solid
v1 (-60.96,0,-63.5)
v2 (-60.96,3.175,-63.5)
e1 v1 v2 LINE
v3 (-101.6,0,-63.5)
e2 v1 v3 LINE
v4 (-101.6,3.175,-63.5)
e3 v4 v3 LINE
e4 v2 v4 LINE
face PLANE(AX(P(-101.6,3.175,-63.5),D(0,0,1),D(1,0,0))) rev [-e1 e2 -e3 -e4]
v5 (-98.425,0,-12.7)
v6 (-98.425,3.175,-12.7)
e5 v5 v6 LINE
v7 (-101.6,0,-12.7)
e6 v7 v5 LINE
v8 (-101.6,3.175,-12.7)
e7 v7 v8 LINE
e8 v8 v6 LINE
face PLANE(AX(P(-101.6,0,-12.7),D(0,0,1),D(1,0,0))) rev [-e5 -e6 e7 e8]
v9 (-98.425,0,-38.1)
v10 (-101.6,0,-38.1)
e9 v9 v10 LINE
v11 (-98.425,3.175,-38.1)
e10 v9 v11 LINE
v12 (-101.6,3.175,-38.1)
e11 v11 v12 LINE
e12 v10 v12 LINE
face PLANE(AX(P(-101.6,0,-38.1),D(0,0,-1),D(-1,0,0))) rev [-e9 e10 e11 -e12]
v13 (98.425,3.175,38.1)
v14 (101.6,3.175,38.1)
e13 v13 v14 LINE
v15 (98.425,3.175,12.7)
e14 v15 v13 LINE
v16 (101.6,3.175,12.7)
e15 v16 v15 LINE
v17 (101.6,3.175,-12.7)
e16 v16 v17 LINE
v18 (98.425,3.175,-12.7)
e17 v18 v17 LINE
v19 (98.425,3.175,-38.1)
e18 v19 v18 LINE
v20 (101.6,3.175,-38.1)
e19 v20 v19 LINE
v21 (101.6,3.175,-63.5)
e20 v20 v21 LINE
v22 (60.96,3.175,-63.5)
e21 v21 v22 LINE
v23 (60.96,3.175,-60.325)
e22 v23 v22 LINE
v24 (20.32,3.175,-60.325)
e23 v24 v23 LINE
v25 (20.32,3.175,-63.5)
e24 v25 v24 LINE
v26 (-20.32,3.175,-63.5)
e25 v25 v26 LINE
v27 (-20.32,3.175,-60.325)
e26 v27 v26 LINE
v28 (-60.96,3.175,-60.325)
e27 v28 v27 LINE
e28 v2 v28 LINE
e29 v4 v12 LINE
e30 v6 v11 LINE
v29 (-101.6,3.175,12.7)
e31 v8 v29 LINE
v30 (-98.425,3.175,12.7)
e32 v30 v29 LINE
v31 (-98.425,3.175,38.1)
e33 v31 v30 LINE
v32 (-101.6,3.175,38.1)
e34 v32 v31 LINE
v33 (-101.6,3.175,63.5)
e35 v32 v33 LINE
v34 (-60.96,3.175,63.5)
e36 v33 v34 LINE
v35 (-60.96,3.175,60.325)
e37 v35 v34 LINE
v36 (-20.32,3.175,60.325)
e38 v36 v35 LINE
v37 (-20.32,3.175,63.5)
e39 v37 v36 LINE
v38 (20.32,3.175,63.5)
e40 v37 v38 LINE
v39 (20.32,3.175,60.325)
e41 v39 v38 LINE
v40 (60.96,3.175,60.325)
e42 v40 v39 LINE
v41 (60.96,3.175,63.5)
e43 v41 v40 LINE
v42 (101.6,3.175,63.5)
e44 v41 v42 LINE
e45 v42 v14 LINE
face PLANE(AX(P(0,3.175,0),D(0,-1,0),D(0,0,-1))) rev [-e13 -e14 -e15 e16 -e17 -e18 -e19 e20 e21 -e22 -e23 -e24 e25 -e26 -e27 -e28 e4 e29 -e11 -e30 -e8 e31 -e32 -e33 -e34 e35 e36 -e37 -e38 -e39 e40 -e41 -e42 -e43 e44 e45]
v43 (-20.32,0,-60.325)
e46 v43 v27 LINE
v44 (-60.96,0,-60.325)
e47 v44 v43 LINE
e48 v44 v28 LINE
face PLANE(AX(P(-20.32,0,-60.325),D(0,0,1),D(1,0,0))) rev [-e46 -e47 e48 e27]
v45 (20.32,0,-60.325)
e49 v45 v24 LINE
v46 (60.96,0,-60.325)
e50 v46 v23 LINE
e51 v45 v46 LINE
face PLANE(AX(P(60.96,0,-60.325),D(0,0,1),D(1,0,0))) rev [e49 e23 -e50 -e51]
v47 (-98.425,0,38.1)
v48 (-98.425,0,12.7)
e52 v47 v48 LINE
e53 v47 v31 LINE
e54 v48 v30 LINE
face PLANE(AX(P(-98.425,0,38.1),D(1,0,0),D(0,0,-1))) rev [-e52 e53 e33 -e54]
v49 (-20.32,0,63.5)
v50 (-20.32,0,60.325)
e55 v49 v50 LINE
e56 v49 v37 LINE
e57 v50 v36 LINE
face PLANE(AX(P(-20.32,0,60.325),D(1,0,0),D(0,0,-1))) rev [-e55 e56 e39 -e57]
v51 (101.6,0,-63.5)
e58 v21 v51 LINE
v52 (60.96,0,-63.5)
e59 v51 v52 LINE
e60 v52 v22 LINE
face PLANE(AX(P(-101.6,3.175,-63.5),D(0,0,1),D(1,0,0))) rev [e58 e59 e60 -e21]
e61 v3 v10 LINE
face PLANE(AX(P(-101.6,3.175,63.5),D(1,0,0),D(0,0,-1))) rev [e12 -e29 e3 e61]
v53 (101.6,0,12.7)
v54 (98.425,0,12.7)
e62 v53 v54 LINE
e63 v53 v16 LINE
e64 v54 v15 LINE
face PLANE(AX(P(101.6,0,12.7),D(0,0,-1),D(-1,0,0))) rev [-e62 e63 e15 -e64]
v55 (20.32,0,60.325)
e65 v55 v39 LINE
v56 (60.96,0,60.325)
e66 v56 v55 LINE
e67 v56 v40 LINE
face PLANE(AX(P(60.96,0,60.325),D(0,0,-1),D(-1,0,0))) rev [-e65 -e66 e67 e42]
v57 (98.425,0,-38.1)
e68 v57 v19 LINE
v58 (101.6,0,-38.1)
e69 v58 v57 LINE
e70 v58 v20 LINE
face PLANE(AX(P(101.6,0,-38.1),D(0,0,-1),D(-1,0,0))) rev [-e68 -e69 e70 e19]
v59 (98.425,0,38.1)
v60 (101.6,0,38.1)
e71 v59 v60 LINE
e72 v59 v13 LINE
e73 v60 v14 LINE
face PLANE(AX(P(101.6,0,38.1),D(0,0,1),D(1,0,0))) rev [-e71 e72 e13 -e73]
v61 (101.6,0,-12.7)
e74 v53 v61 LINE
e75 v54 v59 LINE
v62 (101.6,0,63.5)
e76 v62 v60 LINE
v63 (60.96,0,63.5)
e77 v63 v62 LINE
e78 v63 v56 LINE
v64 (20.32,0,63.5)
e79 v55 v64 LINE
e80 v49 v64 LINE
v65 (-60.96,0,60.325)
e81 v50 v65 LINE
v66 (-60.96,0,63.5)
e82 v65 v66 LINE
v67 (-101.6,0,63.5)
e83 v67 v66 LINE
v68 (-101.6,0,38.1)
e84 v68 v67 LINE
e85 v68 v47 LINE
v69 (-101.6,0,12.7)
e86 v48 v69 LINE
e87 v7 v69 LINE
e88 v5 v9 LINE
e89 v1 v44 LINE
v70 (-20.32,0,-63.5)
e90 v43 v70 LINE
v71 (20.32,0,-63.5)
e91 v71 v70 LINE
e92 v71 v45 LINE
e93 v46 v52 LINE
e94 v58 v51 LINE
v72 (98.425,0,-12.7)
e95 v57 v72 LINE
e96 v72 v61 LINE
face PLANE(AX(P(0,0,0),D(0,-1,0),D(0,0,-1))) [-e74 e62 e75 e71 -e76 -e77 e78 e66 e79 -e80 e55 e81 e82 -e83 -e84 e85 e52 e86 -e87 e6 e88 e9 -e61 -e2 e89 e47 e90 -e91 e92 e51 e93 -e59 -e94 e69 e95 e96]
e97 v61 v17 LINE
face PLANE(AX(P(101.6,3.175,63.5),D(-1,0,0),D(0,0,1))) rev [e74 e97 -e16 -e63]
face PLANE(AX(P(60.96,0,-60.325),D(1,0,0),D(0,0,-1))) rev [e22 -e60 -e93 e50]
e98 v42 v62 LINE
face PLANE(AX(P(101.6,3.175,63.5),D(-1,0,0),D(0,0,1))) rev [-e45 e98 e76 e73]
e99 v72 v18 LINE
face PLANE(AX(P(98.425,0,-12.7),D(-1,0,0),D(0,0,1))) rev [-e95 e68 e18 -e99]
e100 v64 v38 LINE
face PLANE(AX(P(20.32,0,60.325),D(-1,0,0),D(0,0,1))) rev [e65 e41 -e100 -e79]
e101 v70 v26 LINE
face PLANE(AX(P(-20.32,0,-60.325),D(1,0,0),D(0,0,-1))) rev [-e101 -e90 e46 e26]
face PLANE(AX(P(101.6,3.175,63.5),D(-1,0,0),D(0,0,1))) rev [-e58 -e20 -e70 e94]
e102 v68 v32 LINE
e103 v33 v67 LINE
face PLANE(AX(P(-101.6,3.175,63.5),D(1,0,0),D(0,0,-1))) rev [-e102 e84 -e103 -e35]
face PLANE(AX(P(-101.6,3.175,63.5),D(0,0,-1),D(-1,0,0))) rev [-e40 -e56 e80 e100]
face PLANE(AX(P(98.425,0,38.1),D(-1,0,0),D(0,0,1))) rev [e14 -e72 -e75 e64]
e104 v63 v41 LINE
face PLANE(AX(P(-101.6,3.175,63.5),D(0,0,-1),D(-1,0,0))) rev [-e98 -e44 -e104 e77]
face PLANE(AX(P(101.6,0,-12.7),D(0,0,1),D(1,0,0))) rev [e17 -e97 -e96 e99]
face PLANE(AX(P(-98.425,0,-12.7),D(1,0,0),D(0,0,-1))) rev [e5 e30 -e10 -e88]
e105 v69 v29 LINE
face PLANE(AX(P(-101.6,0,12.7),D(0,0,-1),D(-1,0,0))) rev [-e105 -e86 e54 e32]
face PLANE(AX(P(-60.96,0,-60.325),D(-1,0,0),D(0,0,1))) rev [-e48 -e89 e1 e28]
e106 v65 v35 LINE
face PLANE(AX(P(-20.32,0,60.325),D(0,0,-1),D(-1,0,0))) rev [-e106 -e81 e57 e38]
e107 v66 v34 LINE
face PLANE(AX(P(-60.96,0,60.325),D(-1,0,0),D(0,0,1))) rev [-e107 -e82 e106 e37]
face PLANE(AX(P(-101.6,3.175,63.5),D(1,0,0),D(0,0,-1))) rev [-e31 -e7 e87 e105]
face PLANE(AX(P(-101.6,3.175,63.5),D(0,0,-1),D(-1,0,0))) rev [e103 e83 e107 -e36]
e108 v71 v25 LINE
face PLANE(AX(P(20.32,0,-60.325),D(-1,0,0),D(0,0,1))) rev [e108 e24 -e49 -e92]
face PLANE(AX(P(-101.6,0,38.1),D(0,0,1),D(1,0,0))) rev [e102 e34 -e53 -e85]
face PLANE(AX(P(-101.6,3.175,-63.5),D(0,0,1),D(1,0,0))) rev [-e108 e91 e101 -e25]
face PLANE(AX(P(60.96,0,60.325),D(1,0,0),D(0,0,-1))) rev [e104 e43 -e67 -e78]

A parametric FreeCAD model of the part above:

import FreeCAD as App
import Part
import Sketcher

V = App.Vector
Q = App.Units.Quantity

doc = App.newDocument("Part")
params = doc.addObject("Spreadsheet::Sheet", "Params")
for row, (alias, value) in enumerate([
    ("sketch1_width", "8 in"),
    ("sketch1_height", "5 in"),
    ("pad1_length", "0.125 in"),
    ("sketch2_width", "1.6 in"),
    ("sketch2_height", "0.125 in"),
    ("pocket1_length", "0.125 in"),
    ("linearpattern_pitch", "3.2 in"),
    ("sketch3_width", "1.6 in"),
    ("sketch3_height", "0.125 in"),
    ("pocket2_length", "0.125 in"),
    ("linearpattern2_pitch", "3.2 in"),
    ("sketch4_height", "1 in"),
    ("sketch4_width", "0.125 in"),
    ("pocket3_length", "0.125 in"),
    ("linearpattern3_pitch", "2 in"),
    ("sketch5_height", "1 in"),
    ("sketch5_width", "0.125 in"),
    ("pocket4_length", "0.125 in"),
    ("linearpattern4_pitch", "2 in"),
], start=1):
    params.set(f"A{row}", alias)
    params.set(f"B{row}", "=" + value)
    params.setAlias(f"B{row}", alias)

body = doc.addObject("PartDesign::Body", "Body")

# Sketch on XZ plane
sketch1 = doc.addObject("Sketcher::SketchObject", "Sketch")
body.addObject(sketch1)
sketch1.AttachmentSupport = (doc.XZ_Plane, [""])
sketch1.MapMode = "FlatFace"
sketch1.addGeometry(Part.LineSegment(V(-102, -64, 0), V(-102, 64, 0)), False)
sketch1.addGeometry(Part.LineSegment(V(-102, 64, 0), V(102, 64, 0)), False)
sketch1.addGeometry(Part.LineSegment(V(102, 64, 0), V(102, -64, 0)), False)
sketch1.addGeometry(Part.LineSegment(V(102, -64, 0), V(-102, -64, 0)), False)
sketch1.addConstraint(Sketcher.Constraint("Coincident", 0, 2, 1, 1))
sketch1.addConstraint(Sketcher.Constraint("Coincident", 1, 2, 2, 1))
sketch1.addConstraint(Sketcher.Constraint("Coincident", 2, 2, 3, 1))
sketch1.addConstraint(Sketcher.Constraint("Coincident", 3, 2, 0, 1))
sketch1.addConstraint(Sketcher.Constraint("Vertical", 0))
sketch1.addConstraint(Sketcher.Constraint("Horizontal", 1))
sketch1.addConstraint(Sketcher.Constraint("Vertical", 2))
sketch1.addConstraint(Sketcher.Constraint("Horizontal", 3))
sketch1.addConstraint(Sketcher.Constraint("Symmetric", 0, 2, 2, 2, -1, 1))
sketch1.addConstraint(Sketcher.Constraint("DistanceX", 1, 1, 1, 2, Q("8 in")))
sketch1.addConstraint(Sketcher.Constraint("DistanceY", 0, 1, 0, 2, Q("5 in")))
sketch1.setExpression("Constraints[9]", "Params.sketch1_width")
sketch1.setExpression("Constraints[10]", "Params.sketch1_height")
pad1 = doc.addObject("PartDesign::Pad", "Pad")
body.addObject(pad1)
pad1.Profile = sketch1
pad1.setExpression("Length", "Params.pad1_length")
pad1.Reversed = True

# Sketch on XZ plane
sketch2 = doc.addObject("Sketcher::SketchObject", "Sketch001")
body.addObject(sketch2)
sketch2.AttachmentSupport = (doc.XZ_Plane, [""])
sketch2.MapMode = "FlatFace"
sketch2.AttachmentOffset = App.Placement(V(0, 0, -0.125 * 25.4), App.Rotation())
sketch2.addGeometry(Part.LineSegment(V(-61, 60.3, 0), V(-61, 63.5, 0)), False)
sketch2.addGeometry(Part.LineSegment(V(-61, 63.5, 0), V(-20.3, 63.5, 0)), False)
sketch2.addGeometry(Part.LineSegment(V(-20.3, 63.5, 0), V(-20.3, 60.3, 0)), False)
sketch2.addGeometry(Part.LineSegment(V(-20.3, 60.3, 0), V(-61, 60.3, 0)), False)
sketch2.addConstraint(Sketcher.Constraint("Coincident", 0, 2, 1, 1))
sketch2.addConstraint(Sketcher.Constraint("Coincident", 1, 2, 2, 1))
sketch2.addConstraint(Sketcher.Constraint("Coincident", 2, 2, 3, 1))
sketch2.addConstraint(Sketcher.Constraint("Coincident", 3, 2, 0, 1))
sketch2.addConstraint(Sketcher.Constraint("Vertical", 0))
sketch2.addConstraint(Sketcher.Constraint("Horizontal", 1))
sketch2.addConstraint(Sketcher.Constraint("Vertical", 2))
sketch2.addConstraint(Sketcher.Constraint("Horizontal", 3))
sketch2.addConstraint(Sketcher.Constraint("DistanceX", 1, 1, 1, 2, Q("1.6 in")))
sketch2.addConstraint(Sketcher.Constraint("DistanceX", 0, 2, -1, 1, Q("2.4 in")))
sketch2.addConstraint(Sketcher.Constraint("DistanceY", -1, 1, 0, 2, Q("2.5 in")))
sketch2.addConstraint(Sketcher.Constraint("DistanceY", 0, 1, 0, 2, Q("0.125 in")))
sketch2.setExpression("Constraints[8]", "Params.sketch2_width")
sketch2.setExpression("Constraints[11]", "Params.sketch2_height")
pocket1 = doc.addObject("PartDesign::Pocket", "Pocket")
body.addObject(pocket1)
pocket1.Profile = sketch2
pocket1.setExpression("Length", "Params.pocket1_length")
pocket1.Reversed = True
doc.recompute()

linearpattern = doc.addObject("PartDesign::LinearPattern", "LinearPattern")
body.addObject(linearpattern)
linearpattern.Originals = [pocket1]
linearpattern.Direction = (doc.X_Axis, [""])
linearpattern.Mode = "offset"
linearpattern.setExpression("Offset", "Params.linearpattern_pitch")
linearpattern.Occurrences = 2
body.Tip = linearpattern

# Sketch on XZ plane
sketch3 = doc.addObject("Sketcher::SketchObject", "Sketch002")
body.addObject(sketch3)
sketch3.AttachmentSupport = (doc.XZ_Plane, [""])
sketch3.MapMode = "FlatFace"
sketch3.AttachmentOffset = App.Placement(V(0, 0, -0.125 * 25.4), App.Rotation())
sketch3.addGeometry(Part.LineSegment(V(-61, -63.5, 0), V(-61, -60.3, 0)), False)
sketch3.addGeometry(Part.LineSegment(V(-61, -60.3, 0), V(-20.3, -60.3, 0)), False)
sketch3.addGeometry(Part.LineSegment(V(-20.3, -60.3, 0), V(-20.3, -63.5, 0)), False)
sketch3.addGeometry(Part.LineSegment(V(-20.3, -63.5, 0), V(-61, -63.5, 0)), False)
sketch3.addConstraint(Sketcher.Constraint("Coincident", 0, 2, 1, 1))
sketch3.addConstraint(Sketcher.Constraint("Coincident", 1, 2, 2, 1))
sketch3.addConstraint(Sketcher.Constraint("Coincident", 2, 2, 3, 1))
sketch3.addConstraint(Sketcher.Constraint("Coincident", 3, 2, 0, 1))
sketch3.addConstraint(Sketcher.Constraint("Vertical", 0))
sketch3.addConstraint(Sketcher.Constraint("Horizontal", 1))
sketch3.addConstraint(Sketcher.Constraint("Vertical", 2))
sketch3.addConstraint(Sketcher.Constraint("Horizontal", 3))
sketch3.addConstraint(Sketcher.Constraint("DistanceX", 1, 1, 1, 2, Q("1.6 in")))
sketch3.addConstraint(Sketcher.Constraint("DistanceX", 0, 2, -1, 1, Q("2.4 in")))
sketch3.addConstraint(Sketcher.Constraint("DistanceY", 2, 2, -1, 1, Q("2.5 in")))
sketch3.addConstraint(Sketcher.Constraint("DistanceY", 0, 1, 0, 2, Q("0.125 in")))
sketch3.setExpression("Constraints[8]", "Params.sketch3_width")
sketch3.setExpression("Constraints[11]", "Params.sketch3_height")
pocket2 = doc.addObject("PartDesign::Pocket", "Pocket001")
body.addObject(pocket2)
pocket2.Profile = sketch3
pocket2.setExpression("Length", "Params.pocket2_length")
pocket2.Reversed = True
doc.recompute()

linearpattern2 = doc.addObject("PartDesign::LinearPattern", "LinearPattern001")
body.addObject(linearpattern2)
linearpattern2.Originals = [pocket2]
linearpattern2.Direction = (doc.X_Axis, [""])
linearpattern2.Mode = "offset"
linearpattern2.setExpression("Offset", "Params.linearpattern2_pitch")
linearpattern2.Occurrences = 2
body.Tip = linearpattern2

# Sketch on XZ plane
sketch4 = doc.addObject("Sketcher::SketchObject", "Sketch003")
body.addObject(sketch4)
sketch4.AttachmentSupport = (doc.XZ_Plane, [""])
sketch4.MapMode = "FlatFace"
sketch4.AttachmentOffset = App.Placement(V(0, 0, -0.125 * 25.4), App.Rotation())
sketch4.addGeometry(Part.LineSegment(V(-101.6, 12.7, 0), V(-101.6, 38.1, 0)), False)
sketch4.addGeometry(Part.LineSegment(V(-101.6, 38.1, 0), V(-98.4, 38.1, 0)), False)
sketch4.addGeometry(Part.LineSegment(V(-98.4, 38.1, 0), V(-98.4, 12.7, 0)), False)
sketch4.addGeometry(Part.LineSegment(V(-98.4, 12.7, 0), V(-101.6, 12.7, 0)), False)
sketch4.addConstraint(Sketcher.Constraint("Coincident", 0, 2, 1, 1))
sketch4.addConstraint(Sketcher.Constraint("Coincident", 1, 2, 2, 1))
sketch4.addConstraint(Sketcher.Constraint("Coincident", 2, 2, 3, 1))
sketch4.addConstraint(Sketcher.Constraint("Coincident", 3, 2, 0, 1))
sketch4.addConstraint(Sketcher.Constraint("Vertical", 0))
sketch4.addConstraint(Sketcher.Constraint("Horizontal", 1))
sketch4.addConstraint(Sketcher.Constraint("Vertical", 2))
sketch4.addConstraint(Sketcher.Constraint("Horizontal", 3))
sketch4.addConstraint(Sketcher.Constraint("DistanceY", 0, 1, 0, 2, Q("1 in")))
sketch4.addConstraint(Sketcher.Constraint("DistanceX", 0, 2, -1, 1, Q("4 in")))
sketch4.addConstraint(Sketcher.Constraint("DistanceY", -1, 1, 0, 2, Q("1.5 in")))
sketch4.addConstraint(Sketcher.Constraint("DistanceX", 1, 1, 1, 2, Q("0.125 in")))
sketch4.setExpression("Constraints[8]", "Params.sketch4_height")
sketch4.setExpression("Constraints[11]", "Params.sketch4_width")
pocket3 = doc.addObject("PartDesign::Pocket", "Pocket002")
body.addObject(pocket3)
pocket3.Profile = sketch4
pocket3.setExpression("Length", "Params.pocket3_length")
pocket3.Reversed = True
doc.recompute()

linearpattern3 = doc.addObject("PartDesign::LinearPattern", "LinearPattern002")
body.addObject(linearpattern3)
linearpattern3.Originals = [pocket3]
linearpattern3.Direction = (doc.Z_Axis, [""])
linearpattern3.Mode = "offset"
linearpattern3.setExpression("Offset", "Params.linearpattern3_pitch")
linearpattern3.Occurrences = 2
linearpattern3.Reversed = True
body.Tip = linearpattern3

# Sketch on XZ plane
sketch5 = doc.addObject("Sketcher::SketchObject", "Sketch004")
body.addObject(sketch5)
sketch5.AttachmentSupport = (doc.XZ_Plane, [""])
sketch5.MapMode = "FlatFace"
sketch5.AttachmentOffset = App.Placement(V(0, 0, -0.125 * 25.4), App.Rotation())
sketch5.addGeometry(Part.LineSegment(V(98.4, 12.7, 0), V(98.4, 38.1, 0)), False)
sketch5.addGeometry(Part.LineSegment(V(98.4, 38.1, 0), V(101.6, 38.1, 0)), False)
sketch5.addGeometry(Part.LineSegment(V(101.6, 38.1, 0), V(101.6, 12.7, 0)), False)
sketch5.addGeometry(Part.LineSegment(V(101.6, 12.7, 0), V(98.4, 12.7, 0)), False)
sketch5.addConstraint(Sketcher.Constraint("Coincident", 0, 2, 1, 1))
sketch5.addConstraint(Sketcher.Constraint("Coincident", 1, 2, 2, 1))
sketch5.addConstraint(Sketcher.Constraint("Coincident", 2, 2, 3, 1))
sketch5.addConstraint(Sketcher.Constraint("Coincident", 3, 2, 0, 1))
sketch5.addConstraint(Sketcher.Constraint("Vertical", 0))
sketch5.addConstraint(Sketcher.Constraint("Horizontal", 1))
sketch5.addConstraint(Sketcher.Constraint("Vertical", 2))
sketch5.addConstraint(Sketcher.Constraint("Horizontal", 3))
sketch5.addConstraint(Sketcher.Constraint("DistanceY", 0, 1, 0, 2, Q("1 in")))
sketch5.addConstraint(Sketcher.Constraint("DistanceX", -1, 1, 1, 2, Q("4 in")))
sketch5.addConstraint(Sketcher.Constraint("DistanceY", -1, 1, 0, 2, Q("1.5 in")))
sketch5.addConstraint(Sketcher.Constraint("DistanceX", 1, 1, 1, 2, Q("0.125 in")))
sketch5.setExpression("Constraints[8]", "Params.sketch5_height")
sketch5.setExpression("Constraints[11]", "Params.sketch5_width")
pocket4 = doc.addObject("PartDesign::Pocket", "Pocket003")
body.addObject(pocket4)
pocket4.Profile = sketch5
pocket4.setExpression("Length", "Params.pocket4_length")
pocket4.Reversed = True
doc.recompute()

linearpattern4 = doc.addObject("PartDesign::LinearPattern", "LinearPattern003")
body.addObject(linearpattern4)
linearpattern4.Originals = [pocket4]
linearpattern4.Direction = (doc.Z_Axis, [""])
linearpattern4.Mode = "offset"
linearpattern4.setExpression("Offset", "Params.linearpattern4_pitch")
linearpattern4.Occurrences = 2
linearpattern4.Reversed = True
body.Tip = linearpattern4

doc.recompute()
